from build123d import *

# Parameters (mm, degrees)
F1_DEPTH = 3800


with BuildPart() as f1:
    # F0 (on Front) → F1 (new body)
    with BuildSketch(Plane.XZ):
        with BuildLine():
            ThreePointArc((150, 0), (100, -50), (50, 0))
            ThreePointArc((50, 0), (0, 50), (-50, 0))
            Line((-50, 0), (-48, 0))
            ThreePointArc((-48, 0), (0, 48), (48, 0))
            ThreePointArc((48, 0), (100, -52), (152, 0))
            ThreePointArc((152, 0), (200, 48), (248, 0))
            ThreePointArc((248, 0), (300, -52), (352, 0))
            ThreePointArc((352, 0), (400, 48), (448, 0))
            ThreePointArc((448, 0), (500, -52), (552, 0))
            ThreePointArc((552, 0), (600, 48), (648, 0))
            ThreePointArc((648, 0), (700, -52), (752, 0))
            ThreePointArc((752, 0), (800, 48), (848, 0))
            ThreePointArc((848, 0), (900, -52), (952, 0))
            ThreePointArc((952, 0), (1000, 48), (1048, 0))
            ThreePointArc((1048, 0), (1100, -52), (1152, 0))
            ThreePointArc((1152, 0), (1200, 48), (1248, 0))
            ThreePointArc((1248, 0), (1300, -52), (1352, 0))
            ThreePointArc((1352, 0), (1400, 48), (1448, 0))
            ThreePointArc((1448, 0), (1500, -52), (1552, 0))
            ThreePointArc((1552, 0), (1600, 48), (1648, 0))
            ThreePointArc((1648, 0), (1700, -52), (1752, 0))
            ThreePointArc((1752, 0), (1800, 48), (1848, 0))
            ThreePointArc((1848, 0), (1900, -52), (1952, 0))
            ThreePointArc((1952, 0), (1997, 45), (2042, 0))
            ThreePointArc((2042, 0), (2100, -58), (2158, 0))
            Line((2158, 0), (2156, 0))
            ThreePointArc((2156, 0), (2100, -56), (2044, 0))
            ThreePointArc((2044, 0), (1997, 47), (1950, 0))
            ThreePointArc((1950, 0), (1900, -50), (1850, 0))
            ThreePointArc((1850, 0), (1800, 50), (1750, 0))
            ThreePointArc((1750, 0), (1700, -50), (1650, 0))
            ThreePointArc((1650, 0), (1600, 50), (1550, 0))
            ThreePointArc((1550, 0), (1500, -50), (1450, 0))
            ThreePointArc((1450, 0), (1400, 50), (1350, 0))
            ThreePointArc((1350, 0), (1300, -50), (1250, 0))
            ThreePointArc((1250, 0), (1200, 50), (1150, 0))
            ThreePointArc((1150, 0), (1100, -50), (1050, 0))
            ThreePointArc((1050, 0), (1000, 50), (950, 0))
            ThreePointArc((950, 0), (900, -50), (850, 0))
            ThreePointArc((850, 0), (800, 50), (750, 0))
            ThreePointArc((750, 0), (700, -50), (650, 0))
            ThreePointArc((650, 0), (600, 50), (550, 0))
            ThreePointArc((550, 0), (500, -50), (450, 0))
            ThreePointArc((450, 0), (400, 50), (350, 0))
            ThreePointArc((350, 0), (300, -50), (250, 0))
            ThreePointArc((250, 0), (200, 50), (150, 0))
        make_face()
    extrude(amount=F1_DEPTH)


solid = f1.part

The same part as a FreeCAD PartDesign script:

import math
import FreeCAD as App
import Part
import Sketcher

doc = App.newDocument("Part")
body = doc.addObject("PartDesign::Body", "Body")

sketch1 = body.newObject("Sketcher::SketchObject", "Sketch")
sketch1.AttachmentSupport = (doc.getObject("XZ_Plane"), [""])
sketch1.MapMode = "FlatFace"
sketch1.addGeometry([
    Part.ArcOfCircle(Part.Circle(App.Vector(100, 0, 0), App.Vector(0, 0, 1), 50), math.radians(180), math.radians(360)),
    Part.ArcOfCircle(Part.Circle(App.Vector(0, 0, 0), App.Vector(0, 0, 1), 50), math.radians(0), math.radians(180)),
    Part.LineSegment(App.Vector(-50, 0, 0), App.Vector(-48, 0, 0)),
    Part.ArcOfCircle(Part.Circle(App.Vector(0, 0, 0), App.Vector(0, 0, 1), 48), math.radians(0), math.radians(180)),
    Part.ArcOfCircle(Part.Circle(App.Vector(100, 0, 0), App.Vector(0, 0, 1), 52), math.radians(180), math.radians(360)),
    Part.ArcOfCircle(Part.Circle(App.Vector(200, 0, 0), App.Vector(0, 0, 1), 48), math.radians(0), math.radians(180)),
    Part.ArcOfCircle(Part.Circle(App.Vector(300, 0, 0), App.Vector(0, 0, 1), 52), math.radians(180), math.radians(360)),
    Part.ArcOfCircle(Part.Circle(App.Vector(400, 0, 0), App.Vector(0, 0, 1), 48), math.radians(0), math.radians(180)),
    Part.ArcOfCircle(Part.Circle(App.Vector(500, 0, 0), App.Vector(0, 0, 1), 52), math.radians(180), math.radians(360)),
    Part.ArcOfCircle(Part.Circle(App.Vector(600, 0, 0), App.Vector(0, 0, 1), 48), math.radians(0), math.radians(180)),
    Part.ArcOfCircle(Part.Circle(App.Vector(700, 0, 0), App.Vector(0, 0, 1), 52), math.radians(180), math.radians(360)),
    Part.ArcOfCircle(Part.Circle(App.Vector(800, 0, 0), App.Vector(0, 0, 1), 48), math.radians(0), math.radians(180)),
    Part.ArcOfCircle(Part.Circle(App.Vector(900, 0, 0), App.Vector(0, 0, 1), 52), math.radians(180), math.radians(360)),
    Part.ArcOfCircle(Part.Circle(App.Vector(1000, 0, 0), App.Vector(0, 0, 1), 48), math.radians(0), math.radians(180)),
    Part.ArcOfCircle(Part.Circle(App.Vector(1100, 0, 0), App.Vector(0, 0, 1), 52), math.radians(180), math.radians(360)),
    Part.ArcOfCircle(Part.Circle(App.Vector(1200, 0, 0), App.Vector(0, 0, 1), 48), math.radians(0), math.radians(180)),
    Part.ArcOfCircle(Part.Circle(App.Vector(1300, 0, 0), App.Vector(0, 0, 1), 52), math.radians(180), math.radians(360)),
    Part.ArcOfCircle(Part.Circle(App.Vector(1400, 0, 0), App.Vector(0, 0, 1), 48), math.radians(0), math.radians(180)),
    Part.ArcOfCircle(Part.Circle(App.Vector(1500, 0, 0), App.Vector(0, 0, 1), 52), math.radians(180), math.radians(360)),
    Part.ArcOfCircle(Part.Circle(App.Vector(1600, 0, 0), App.Vector(0, 0, 1), 48), math.radians(0), math.radians(180)),
    Part.ArcOfCircle(Part.Circle(App.Vector(1700, 0, 0), App.Vector(0, 0, 1), 52), math.radians(180), math.radians(360)),
    Part.ArcOfCircle(Part.Circle(App.Vector(1800, 0, 0), App.Vector(0, 0, 1), 48), math.radians(0), math.radians(180)),
    Part.ArcOfCircle(Part.Circle(App.Vector(1900, 0, 0), App.Vector(0, 0, 1), 52), math.radians(180), math.radians(360)),
    Part.ArcOfCircle(Part.Circle(App.Vector(1997, 0, 0), App.Vector(0, 0, 1), 45), math.radians(0), math.radians(180)),
    Part.ArcOfCircle(Part.Circle(App.Vector(2100, 0, 0), App.Vector(0, 0, 1), 58), math.radians(180), math.radians(360)),
    Part.LineSegment(App.Vector(2158, 0, 0), App.Vector(2156, 0, 0)),
    Part.ArcOfCircle(Part.Circle(App.Vector(2100, 0, 0), App.Vector(0, 0, 1), 56), math.radians(180), math.radians(360)),
    Part.ArcOfCircle(Part.Circle(App.Vector(1997, 0, 0), App.Vector(0, 0, 1), 47), math.radians(0), math.radians(180)),
    Part.ArcOfCircle(Part.Circle(App.Vector(1900, 0, 0), App.Vector(0, 0, 1), 50), math.radians(180), math.radians(360)),
    Part.ArcOfCircle(Part.Circle(App.Vector(1800, 0, 0), App.Vector(0, 0, 1), 50), math.radians(0), math.radians(180)),
    Part.ArcOfCircle(Part.Circle(App.Vector(1700, 0, 0), App.Vector(0, 0, 1), 50), math.radians(180), math.radians(360)),
    Part.ArcOfCircle(Part.Circle(App.Vector(1600, 0, 0), App.Vector(0, 0, 1), 50), math.radians(0), math.radians(180)),
    Part.ArcOfCircle(Part.Circle(App.Vector(1500, 0, 0), App.Vector(0, 0, 1), 50), math.radians(180), math.radians(360)),
    Part.ArcOfCircle(Part.Circle(App.Vector(1400, 0, 0), App.Vector(0, 0, 1), 50), math.radians(0), math.radians(180)),
    Part.ArcOfCircle(Part.Circle(App.Vector(1300, 0, 0), App.Vector(0, 0, 1), 50), math.radians(180), math.radians(360)),
    Part.ArcOfCircle(Part.Circle(App.Vector(1200, 0, 0), App.Vector(0, 0, 1), 50), math.radians(0), math.radians(180)),
    Part.ArcOfCircle(Part.Circle(App.Vector(1100, 0, 0), App.Vector(0, 0, 1), 50), math.radians(180), math.radians(360)),
    Part.ArcOfCircle(Part.Circle(App.Vector(1000, 0, 0), App.Vector(0, 0, 1), 50), math.radians(0), math.radians(180)),
    Part.ArcOfCircle(Part.Circle(App.Vector(900, 0, 0), App.Vector(0, 0, 1), 50), math.radians(180), math.radians(360)),
    Part.ArcOfCircle(Part.Circle(App.Vector(800, 0, 0), App.Vector(0, 0, 1), 50), math.radians(0), math.radians(180)),
    Part.ArcOfCircle(Part.Circle(App.Vector(700, 0, 0), App.Vector(0, 0, 1), 50), math.radians(180), math.radians(360)),
    Part.ArcOfCircle(Part.Circle(App.Vector(600, 0, 0), App.Vector(0, 0, 1), 50), math.radians(0), math.radians(180)),
    Part.ArcOfCircle(Part.Circle(App.Vector(500, 0, 0), App.Vector(0, 0, 1), 50), math.radians(180), math.radians(360)),
    Part.ArcOfCircle(Part.Circle(App.Vector(400, 0, 0), App.Vector(0, 0, 1), 50), math.radians(0), math.radians(180)),
    Part.ArcOfCircle(Part.Circle(App.Vector(300, 0, 0), App.Vector(0, 0, 1), 50), math.radians(180), math.radians(360)),
    Part.ArcOfCircle(Part.Circle(App.Vector(200, 0, 0), App.Vector(0, 0, 1), 50), math.radians(0), math.radians(180)),
], False)
sketch1.addConstraint([
    Sketcher.Constraint("Tangent", 0, 1, 1, 1),
    Sketcher.Constraint("Coincident", 1, 2, 2, 1),
    Sketcher.Constraint("Coincident", 2, 2, 3, 2),
    Sketcher.Constraint("Tangent", 3, 1, 4, 1),
    Sketcher.Constraint("Tangent", 4, 2, 5, 2),
    Sketcher.Constraint("Tangent", 5, 1, 6, 1),
    Sketcher.Constraint("Tangent", 6, 2, 7, 2),
    Sketcher.Constraint("Tangent", 7, 1, 8, 1),
    Sketcher.Constraint("Tangent", 8, 2, 9, 2),
    Sketcher.Constraint("Tangent", 9, 1, 10, 1),
    Sketcher.Constraint("Tangent", 10, 2, 11, 2),
    Sketcher.Constraint("Tangent", 11, 1, 12, 1),
    Sketcher.Constraint("Tangent", 12, 2, 13, 2),
    Sketcher.Constraint("Tangent", 13, 1, 14, 1),
    Sketcher.Constraint("Tangent", 14, 2, 15, 2),
    Sketcher.Constraint("Tangent", 15, 1, 16, 1),
    Sketcher.Constraint("Tangent", 16, 2, 17, 2),
    Sketcher.Constraint("Tangent", 17, 1, 18, 1),
    Sketcher.Constraint("Tangent", 18, 2, 19, 2),
    Sketcher.Constraint("Tangent", 19, 1, 20, 1),
    Sketcher.Constraint("Tangent", 20, 2, 21, 2),
    Sketcher.Constraint("Tangent", 21, 1, 22, 1),
    Sketcher.Constraint("Tangent", 22, 2, 23, 2),
    Sketcher.Constraint("Tangent", 23, 1, 24, 1),
    Sketcher.Constraint("Coincident", 24, 2, 25, 1),
    Sketcher.Constraint("Coincident", 25, 2, 26, 2),
    Sketcher.Constraint("Tangent", 26, 1, 27, 1),
    Sketcher.Constraint("Tangent", 27, 2, 28, 2),
    Sketcher.Constraint("Tangent", 28, 1, 29, 1),
    Sketcher.Constraint("Tangent", 29, 2, 30, 2),
    Sketcher.Constraint("Tangent", 30, 1, 31, 1),
    Sketcher.Constraint("Tangent", 31, 2, 32, 2),
    Sketcher.Constraint("Tangent", 32, 1, 33, 1),
    Sketcher.Constraint("Tangent", 33, 2, 34, 2),
    Sketcher.Constraint("Tangent", 34, 1, 35, 1),
    Sketcher.Constraint("Tangent", 35, 2, 36, 2),
    Sketcher.Constraint("Tangent", 36, 1, 37, 1),
    Sketcher.Constraint("Tangent", 37, 2, 38, 2),
    Sketcher.Constraint("Tangent", 38, 1, 39, 1),
    Sketcher.Constraint("Tangent", 39, 2, 40, 2),
    Sketcher.Constraint("Tangent", 40, 1, 41, 1),
    Sketcher.Constraint("Tangent", 41, 2, 42, 2),
    Sketcher.Constraint("Tangent", 42, 1, 43, 1),
    Sketcher.Constraint("Tangent", 43, 2, 44, 2),
    Sketcher.Constraint("Tangent", 44, 1, 45, 1),
    Sketcher.Constraint("Tangent", 45, 2, 0, 2),
    Sketcher.Constraint("Horizontal", 2),
    Sketcher.Constraint("Horizontal", 25),
    Sketcher.Constraint("Coincident", 1, 3, -1, 1),
    Sketcher.Constraint("Coincident", 3, 3, -1, 1),
    Sketcher.Constraint("Coincident", 4, 3, 0, 3),
    Sketcher.Constraint("Coincident", 26, 3, 24, 3),
    Sketcher.Constraint("Coincident", 27, 3, 23, 3),
    Sketcher.Constraint("Coincident", 28, 3, 22, 3),
    Sketcher.Constraint("Coincident", 29, 3, 21, 3),
    Sketcher.Constraint("Coincident", 30, 3, 20, 3),
    Sketcher.Constraint("Coincident", 31, 3, 19, 3),
    Sketcher.Constraint("Coincident", 32, 3, 18, 3),
    Sketcher.Constraint("Coincident", 33, 3, 17, 3),
    Sketcher.Constraint("Coincident", 34, 3, 16, 3),
    Sketcher.Constraint("Coincident", 35, 3, 15, 3),
    Sketcher.Constraint("Coincident", 36, 3, 14, 3),
    Sketcher.Constraint("Coincident", 37, 3, 13, 3),
    Sketcher.Constraint("Coincident", 38, 3, 12, 3),
    Sketcher.Constraint("Coincident", 39, 3, 11, 3),
    Sketcher.Constraint("Coincident", 40, 3, 10, 3),
    Sketcher.Constraint("Coincident", 41, 3, 9, 3),
    Sketcher.Constraint("Coincident", 42, 3, 8, 3),
    Sketcher.Constraint("Coincident", 43, 3, 7, 3),
    Sketcher.Constraint("Coincident", 44, 3, 6, 3),
    Sketcher.Constraint("Coincident", 45, 3, 5, 3),
    Sketcher.Constraint("Equal", 0, 1),
    Sketcher.Constraint("Equal", 3, 5),
    Sketcher.Constraint("Equal", 4, 6),
    Sketcher.Constraint("Equal", 5, 7),
    Sketcher.Constraint("Equal", 6, 8),
    Sketcher.Constraint("Equal", 7, 9),
    Sketcher.Constraint("Equal", 8, 10),
    Sketcher.Constraint("Equal", 9, 11),
    Sketcher.Constraint("Equal", 10, 12),
    Sketcher.Constraint("Equal", 11, 13),
    Sketcher.Constraint("Equal", 12, 14),
    Sketcher.Constraint("Equal", 13, 15),
    Sketcher.Constraint("Equal", 14, 16),
    Sketcher.Constraint("Equal", 15, 17),
    Sketcher.Constraint("Equal", 16, 18),
    Sketcher.Constraint("Equal", 17, 19),
    Sketcher.Constraint("Equal", 18, 20),
    Sketcher.Constraint("Equal", 19, 21),
    Sketcher.Constraint("Equal", 20, 22),
    Sketcher.Constraint("PointOnObject", 0, 3, -1),
    Sketcher.Constraint("PointOnObject", 5, 3, -1),
    Sketcher.Constraint("PointOnObject", 6, 3, -1),
    Sketcher.Constraint("PointOnObject", 7, 3, -1),
    Sketcher.Constraint("PointOnObject", 8, 3, -1),
    Sketcher.Constraint("PointOnObject", 9, 3, -1),
    Sketcher.Constraint("PointOnObject", 10, 3, -1),
    Sketcher.Constraint("PointOnObject", 11, 3, -1),
    Sketcher.Constraint("PointOnObject", 12, 3, -1),
    Sketcher.Constraint("PointOnObject", 13, 3, -1),
    Sketcher.Constraint("PointOnObject", 14, 3, -1),
    Sketcher.Constraint("PointOnObject", 15, 3, -1),
    Sketcher.Constraint("PointOnObject", 16, 3, -1),
    Sketcher.Constraint("PointOnObject", 17, 3, -1),
    Sketcher.Constraint("PointOnObject", 18, 3, -1),
    Sketcher.Constraint("PointOnObject", 19, 3, -1),
    Sketcher.Constraint("PointOnObject", 20, 3, -1),
    Sketcher.Constraint("PointOnObject", 21, 3, -1),
    Sketcher.Constraint("PointOnObject", 22, 3, -1),
    Sketcher.Constraint("PointOnObject", 23, 3, -1),
    Sketcher.Constraint("PointOnObject", 24, 3, -1),
    Sketcher.Constraint("PointOnObject", 1, 2, -1),
    Sketcher.Constraint("PointOnObject", 24, 2, -1),
    Sketcher.Constraint("Radius", 0, 50.0),
    Sketcher.Constraint("Radius", 3, 48.0),
    Sketcher.Constraint("Radius", 23, 45.0),
    Sketcher.Constraint("Radius", 24, 58.0),
])
pad1 = body.newObject("PartDesign::Pad", "Pad")
pad1.Profile = sketch1
pad1.Length = 3800

doc.recompute()
